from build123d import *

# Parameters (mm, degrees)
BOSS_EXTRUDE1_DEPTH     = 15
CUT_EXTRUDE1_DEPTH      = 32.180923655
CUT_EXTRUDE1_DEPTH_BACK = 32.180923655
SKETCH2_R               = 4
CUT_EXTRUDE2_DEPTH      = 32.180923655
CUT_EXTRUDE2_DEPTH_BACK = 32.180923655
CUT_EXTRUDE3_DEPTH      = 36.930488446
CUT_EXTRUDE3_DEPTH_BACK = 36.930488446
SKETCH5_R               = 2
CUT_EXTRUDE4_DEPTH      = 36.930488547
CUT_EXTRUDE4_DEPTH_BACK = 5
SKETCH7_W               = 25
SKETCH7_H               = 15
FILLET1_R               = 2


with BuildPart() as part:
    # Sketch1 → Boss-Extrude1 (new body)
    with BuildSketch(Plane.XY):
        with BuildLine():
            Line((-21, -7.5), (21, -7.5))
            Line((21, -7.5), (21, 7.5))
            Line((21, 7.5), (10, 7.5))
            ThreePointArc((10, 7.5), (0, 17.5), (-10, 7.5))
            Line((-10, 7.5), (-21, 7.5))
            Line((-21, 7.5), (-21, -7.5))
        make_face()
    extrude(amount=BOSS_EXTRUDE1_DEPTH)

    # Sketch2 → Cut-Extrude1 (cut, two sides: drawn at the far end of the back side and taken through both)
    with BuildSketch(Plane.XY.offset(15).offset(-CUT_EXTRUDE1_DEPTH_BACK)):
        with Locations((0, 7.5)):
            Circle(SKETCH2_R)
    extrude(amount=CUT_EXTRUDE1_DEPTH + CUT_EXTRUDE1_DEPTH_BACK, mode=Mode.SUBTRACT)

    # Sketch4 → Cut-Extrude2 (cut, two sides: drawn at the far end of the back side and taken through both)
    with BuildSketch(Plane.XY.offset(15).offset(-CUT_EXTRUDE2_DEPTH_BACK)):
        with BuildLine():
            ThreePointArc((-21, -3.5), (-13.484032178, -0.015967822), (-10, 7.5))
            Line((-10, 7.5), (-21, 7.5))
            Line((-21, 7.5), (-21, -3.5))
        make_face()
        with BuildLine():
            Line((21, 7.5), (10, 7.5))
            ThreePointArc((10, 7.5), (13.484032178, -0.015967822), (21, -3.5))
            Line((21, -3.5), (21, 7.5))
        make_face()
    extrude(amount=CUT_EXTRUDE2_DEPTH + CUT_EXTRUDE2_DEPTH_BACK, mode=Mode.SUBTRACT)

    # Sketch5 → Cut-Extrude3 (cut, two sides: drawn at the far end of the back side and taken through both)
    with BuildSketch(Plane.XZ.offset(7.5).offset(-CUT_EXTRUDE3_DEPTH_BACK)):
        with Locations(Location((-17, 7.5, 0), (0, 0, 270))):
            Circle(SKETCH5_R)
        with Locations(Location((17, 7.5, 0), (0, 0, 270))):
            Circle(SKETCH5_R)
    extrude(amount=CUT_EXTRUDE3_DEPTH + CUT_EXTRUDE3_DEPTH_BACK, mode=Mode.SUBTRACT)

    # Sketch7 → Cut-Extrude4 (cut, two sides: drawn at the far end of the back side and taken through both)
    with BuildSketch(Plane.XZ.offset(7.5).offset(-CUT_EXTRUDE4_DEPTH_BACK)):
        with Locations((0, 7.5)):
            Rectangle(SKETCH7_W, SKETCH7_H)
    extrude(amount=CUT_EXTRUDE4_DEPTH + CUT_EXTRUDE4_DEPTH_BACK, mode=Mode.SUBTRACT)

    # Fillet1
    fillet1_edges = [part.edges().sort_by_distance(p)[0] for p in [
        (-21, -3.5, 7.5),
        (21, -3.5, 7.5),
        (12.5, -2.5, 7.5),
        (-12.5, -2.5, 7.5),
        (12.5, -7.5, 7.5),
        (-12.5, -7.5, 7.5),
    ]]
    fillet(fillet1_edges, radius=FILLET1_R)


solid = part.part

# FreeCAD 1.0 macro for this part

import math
import FreeCAD as App
import Part
import Sketcher


def edges_at(feature, points):
    """Names of the edges that pass closest to the given points."""
    edges = feature.Shape.Edges
    near = lambda p: min(range(len(edges)), key=lambda i: edges[i].distToShape(Part.Vertex(*p))[0])
    return sorted({f"Edge{near(p) + 1}" for p in points})


def add_polygon(sketch, points):
    """Adds a closed chain of lines whose ends are joined by coincident constraints."""
    first, n = sketch.GeometryCount, len(points)
    for a, b in zip(points, points[1:] + points[:1]):
        sketch.addGeometry(Part.LineSegment(App.Vector(*a, 0), App.Vector(*b, 0)), False)
    for i in range(n):
        sketch.addConstraint(Sketcher.Constraint("Coincident", first + i, 2, first + (i + 1) % n, 1))

doc = App.newDocument("Part")
body = doc.addObject("PartDesign::Body", "Body")

sketch1 = body.newObject("Sketcher::SketchObject", "Sketch")
sketch1.AttachmentSupport = (doc.getObject("XY_Plane"), [""])
sketch1.MapMode = "FlatFace"
sketch1.addGeometry(Part.LineSegment(App.Vector(-21, -8, 0), App.Vector(21, -8, 0)), False)
sketch1.addGeometry(Part.LineSegment(App.Vector(21, -8, 0), App.Vector(21, 8, 0)), False)
sketch1.addGeometry(Part.LineSegment(App.Vector(21, 8, 0), App.Vector(10, 8, 0)), False)
sketch1.addGeometry(Part.ArcOfCircle(Part.Circle(App.Vector(0, 8, 0), App.Vector(0, 0, 1), 10), math.radians(0), math.radians(180)), False)
sketch1.addGeometry(Part.LineSegment(App.Vector(-10, 8, 0), App.Vector(-21, 8, 0)), False)
sketch1.addGeometry(Part.LineSegment(App.Vector(-21, 8, 0), App.Vector(-21, -8, 0)), False)
sketch1.addConstraint(Sketcher.Constraint("Coincident", 0, 2, 1, 1))
sketch1.addConstraint(Sketcher.Constraint("Coincident", 1, 2, 2, 1))
sketch1.addConstraint(Sketcher.Constraint("Coincident", 2, 2, 3, 1))
sketch1.addConstraint(Sketcher.Constraint("Coincident", 3, 2, 4, 1))
sketch1.addConstraint(Sketcher.Constraint("Coincident", 4, 2, 5, 1))
sketch1.addConstraint(Sketcher.Constraint("Coincident", 5, 2, 0, 1))
sketch1.addConstraint(Sketcher.Constraint("Horizontal", 0))
sketch1.addConstraint(Sketcher.Constraint("Vertical", 1))
sketch1.addConstraint(Sketcher.Constraint("Horizontal", 2))
sketch1.addConstraint(Sketcher.Constraint("Horizontal", 4))
sketch1.addConstraint(Sketcher.Constraint("Vertical", 5))
sketch1.addConstraint(Sketcher.Constraint("Symmetric", 0, 2, 4, 2, -1, 1))
sketch1.addConstraint(Sketcher.Constraint("Symmetric", 2, 2, 3, 2, -2))
sketch1.addConstraint(Sketcher.Constraint("Horizontal", 3, 3, 1, 2))
sketch1.addConstraint(Sketcher.Constraint("Radius", 3, 10.0))
sketch1.addConstraint(Sketcher.Constraint("DistanceX", 0, 1, 0, 2, 42.0))
sketch1.addConstraint(Sketcher.Constraint("DistanceY", 1, 1, 1, 2, 15.0))
pad1 = body.newObject("PartDesign::Pad", "Pad")
pad1.Profile = sketch1
pad1.Length = 15

sketch2 = body.newObject("Sketcher::SketchObject", "Sketch001")
sketch2.AttachmentSupport = (doc.getObject("XY_Plane"), [""])
sketch2.MapMode = "FlatFace"
sketch2.AttachmentOffset = App.Placement(App.Vector(0, 0, 15), App.Rotation())
sketch2.addGeometry(Part.Circle(App.Vector(0, 7.5, 0), App.Vector(0, 0, 1), 4), False)
sketch2.addConstraint(Sketcher.Constraint("PointOnObject", 0, 3, -2))
sketch2.addConstraint(Sketcher.Constraint("Diameter", 0, 8.0))
sketch2.addConstraint(Sketcher.Constraint("DistanceY", -1, 1, 0, 3, 7.5))
pocket1 = body.newObject("PartDesign::Pocket", "Pocket")
pocket1.Profile = sketch2
pocket1.Type = "ThroughAll"
pocket1.Midplane = True

sketch3 = body.newObject("Sketcher::SketchObject", "Sketch002")
sketch3.AttachmentSupport = (doc.getObject("XY_Plane"), [""])
sketch3.MapMode = "FlatFace"
sketch3.AttachmentOffset = App.Placement(App.Vector(0, 0, 15), App.Rotation())
sketch3.addGeometry(Part.ArcOfCircle(Part.Circle(App.Vector(-22, 8, 0), App.Vector(0, 0, 1), 12), math.radians(-85), math.radians(-5)), False)
sketch3.addGeometry(Part.LineSegment(App.Vector(-10, 8, 0), App.Vector(-21, 8, 0)), False)
sketch3.addGeometry(Part.LineSegment(App.Vector(-21, 8, 0), App.Vector(-21, -4, 0)), False)
sketch3.addGeometry(Part.LineSegment(App.Vector(21, 8, 0), App.Vector(10, 8, 0)), False)
sketch3.addGeometry(Part.ArcOfCircle(Part.Circle(App.Vector(22, 8, 0), App.Vector(0, 0, 1), 12), math.radians(-175), math.radians(-95)), False)
sketch3.addGeometry(Part.LineSegment(App.Vector(21, -4, 0), App.Vector(21, 8, 0)), False)
sketch3.addConstraint(Sketcher.Constraint("Coincident", 0, 2, 1, 1))
sketch3.addConstraint(Sketcher.Constraint("Coincident", 1, 2, 2, 1))
sketch3.addConstraint(Sketcher.Constraint("Coincident", 2, 2, 0, 1))
sketch3.addConstraint(Sketcher.Constraint("Coincident", 3, 2, 4, 1))
sketch3.addConstraint(Sketcher.Constraint("Coincident", 4, 2, 5, 1))
sketch3.addConstraint(Sketcher.Constraint("Coincident", 5, 2, 3, 1))
sketch3.addConstraint(Sketcher.Constraint("Horizontal", 1))
sketch3.addConstraint(Sketcher.Constraint("Vertical", 2))
sketch3.addConstraint(Sketcher.Constraint("Horizontal", 3))
sketch3.addConstraint(Sketcher.Constraint("Vertical", 5))
sketch3.addConstraint(Sketcher.Constraint("Equal", 0, 4))
sketch3.addConstraint(Sketcher.Constraint("Symmetric", 0, 3, 4, 3, -2))
sketch3.addConstraint(Sketcher.Constraint("Symmetric", 1, 2, 5, 2, -2))
sketch3.addConstraint(Sketcher.Constraint("Equal", 3, 2))
sketch3.addConstraint(Sketcher.Constraint("DistanceX", 1, 2, 1, 1, 11.0))
sketch3.addConstraint(Sketcher.Constraint("DistanceX", 0, 2, -1, 1, 10.0))
sketch3.addConstraint(Sketcher.Constraint("DistanceY", -1, 1, 0, 2, 7.5))
sketch3.addConstraint(Sketcher.Constraint("Radius", 0, 12.035783))
pocket2 = body.newObject("PartDesign::Pocket", "Pocket001")
pocket2.Profile = sketch3
pocket2.Type = "ThroughAll"
pocket2.Midplane = True

sketch4 = body.newObject("Sketcher::SketchObject", "Sketch003")
sketch4.AttachmentSupport = (doc.getObject("XZ_Plane"), [""])
sketch4.MapMode = "FlatFace"
sketch4.AttachmentOffset = App.Placement(App.Vector(0, 0, 7.5), App.Rotation())
sketch4.addGeometry(Part.Circle(App.Vector(-17, 7.5, 0), App.Vector(0, 0, 1), 2), False)
sketch4.addGeometry(Part.Circle(App.Vector(17, 7.5, 0), App.Vector(0, 0, 1), 2), False)
sketch4.addConstraint(Sketcher.Constraint("Equal", 0, 1))
sketch4.addConstraint(Sketcher.Constraint("Symmetric", 0, 3, 1, 3, -2))
sketch4.addConstraint(Sketcher.Constraint("Diameter", 0, 4.0))
sketch4.addConstraint(Sketcher.Constraint("DistanceX", 0, 3, -1, 1, 17.0))
sketch4.addConstraint(Sketcher.Constraint("DistanceY", -1, 1, 0, 3, 7.5))
pocket3 = body.newObject("PartDesign::Pocket", "Pocket002")
pocket3.Profile = sketch4
pocket3.Type = "ThroughAll"
pocket3.Midplane = True

sketch5 = body.newObject("Sketcher::SketchObject", "Sketch004")
sketch5.AttachmentSupport = (doc.getObject("XZ_Plane"), [""])
sketch5.MapMode = "FlatFace"
sketch5.AttachmentOffset = App.Placement(App.Vector(0, 0, 7.5), App.Rotation())
add_polygon(sketch5, [(-12, 15), (-12, 0), (12, 0), (12, 15)])
sketch5.addConstraint(Sketcher.Constraint("Vertical", 0))
sketch5.addConstraint(Sketcher.Constraint("Horizontal", 1))
sketch5.addConstraint(Sketcher.Constraint("Vertical", 2))
sketch5.addConstraint(Sketcher.Constraint("Horizontal", 3))
sketch5.addConstraint(Sketcher.Constraint("Symmetric", 0, 2, 1, 2, -1, 1))
sketch5.addConstraint(Sketcher.Constraint("DistanceX", 1, 1, 1, 2, 25.0))
sketch5.addConstraint(Sketcher.Constraint("DistanceY", 0, 2, 0, 1, 15.0))
pocket4 = body.newObject("PartDesign::Pocket", "Pocket003")
pocket4.Profile = sketch5
pocket4.Type = "TwoLengths"
pocket4.Length = 36.930489
pocket4.Length2 = 5
pocket4.Reversed = True
doc.recompute()

fillet = body.newObject("PartDesign::Fillet", "Fillet")
fillet.Base = (pocket4, edges_at(pocket4, [
    (-21, -3.5, 7.5),
    (21, -3.5, 7.5),
    (12.5, -2.5, 7.5),
    (-12.5, -2.5, 7.5),
    (12.5, -7.5, 7.5),
    (-12.5, -7.5, 7.5),
]))
fillet.Radius = 2

doc.recompute()
